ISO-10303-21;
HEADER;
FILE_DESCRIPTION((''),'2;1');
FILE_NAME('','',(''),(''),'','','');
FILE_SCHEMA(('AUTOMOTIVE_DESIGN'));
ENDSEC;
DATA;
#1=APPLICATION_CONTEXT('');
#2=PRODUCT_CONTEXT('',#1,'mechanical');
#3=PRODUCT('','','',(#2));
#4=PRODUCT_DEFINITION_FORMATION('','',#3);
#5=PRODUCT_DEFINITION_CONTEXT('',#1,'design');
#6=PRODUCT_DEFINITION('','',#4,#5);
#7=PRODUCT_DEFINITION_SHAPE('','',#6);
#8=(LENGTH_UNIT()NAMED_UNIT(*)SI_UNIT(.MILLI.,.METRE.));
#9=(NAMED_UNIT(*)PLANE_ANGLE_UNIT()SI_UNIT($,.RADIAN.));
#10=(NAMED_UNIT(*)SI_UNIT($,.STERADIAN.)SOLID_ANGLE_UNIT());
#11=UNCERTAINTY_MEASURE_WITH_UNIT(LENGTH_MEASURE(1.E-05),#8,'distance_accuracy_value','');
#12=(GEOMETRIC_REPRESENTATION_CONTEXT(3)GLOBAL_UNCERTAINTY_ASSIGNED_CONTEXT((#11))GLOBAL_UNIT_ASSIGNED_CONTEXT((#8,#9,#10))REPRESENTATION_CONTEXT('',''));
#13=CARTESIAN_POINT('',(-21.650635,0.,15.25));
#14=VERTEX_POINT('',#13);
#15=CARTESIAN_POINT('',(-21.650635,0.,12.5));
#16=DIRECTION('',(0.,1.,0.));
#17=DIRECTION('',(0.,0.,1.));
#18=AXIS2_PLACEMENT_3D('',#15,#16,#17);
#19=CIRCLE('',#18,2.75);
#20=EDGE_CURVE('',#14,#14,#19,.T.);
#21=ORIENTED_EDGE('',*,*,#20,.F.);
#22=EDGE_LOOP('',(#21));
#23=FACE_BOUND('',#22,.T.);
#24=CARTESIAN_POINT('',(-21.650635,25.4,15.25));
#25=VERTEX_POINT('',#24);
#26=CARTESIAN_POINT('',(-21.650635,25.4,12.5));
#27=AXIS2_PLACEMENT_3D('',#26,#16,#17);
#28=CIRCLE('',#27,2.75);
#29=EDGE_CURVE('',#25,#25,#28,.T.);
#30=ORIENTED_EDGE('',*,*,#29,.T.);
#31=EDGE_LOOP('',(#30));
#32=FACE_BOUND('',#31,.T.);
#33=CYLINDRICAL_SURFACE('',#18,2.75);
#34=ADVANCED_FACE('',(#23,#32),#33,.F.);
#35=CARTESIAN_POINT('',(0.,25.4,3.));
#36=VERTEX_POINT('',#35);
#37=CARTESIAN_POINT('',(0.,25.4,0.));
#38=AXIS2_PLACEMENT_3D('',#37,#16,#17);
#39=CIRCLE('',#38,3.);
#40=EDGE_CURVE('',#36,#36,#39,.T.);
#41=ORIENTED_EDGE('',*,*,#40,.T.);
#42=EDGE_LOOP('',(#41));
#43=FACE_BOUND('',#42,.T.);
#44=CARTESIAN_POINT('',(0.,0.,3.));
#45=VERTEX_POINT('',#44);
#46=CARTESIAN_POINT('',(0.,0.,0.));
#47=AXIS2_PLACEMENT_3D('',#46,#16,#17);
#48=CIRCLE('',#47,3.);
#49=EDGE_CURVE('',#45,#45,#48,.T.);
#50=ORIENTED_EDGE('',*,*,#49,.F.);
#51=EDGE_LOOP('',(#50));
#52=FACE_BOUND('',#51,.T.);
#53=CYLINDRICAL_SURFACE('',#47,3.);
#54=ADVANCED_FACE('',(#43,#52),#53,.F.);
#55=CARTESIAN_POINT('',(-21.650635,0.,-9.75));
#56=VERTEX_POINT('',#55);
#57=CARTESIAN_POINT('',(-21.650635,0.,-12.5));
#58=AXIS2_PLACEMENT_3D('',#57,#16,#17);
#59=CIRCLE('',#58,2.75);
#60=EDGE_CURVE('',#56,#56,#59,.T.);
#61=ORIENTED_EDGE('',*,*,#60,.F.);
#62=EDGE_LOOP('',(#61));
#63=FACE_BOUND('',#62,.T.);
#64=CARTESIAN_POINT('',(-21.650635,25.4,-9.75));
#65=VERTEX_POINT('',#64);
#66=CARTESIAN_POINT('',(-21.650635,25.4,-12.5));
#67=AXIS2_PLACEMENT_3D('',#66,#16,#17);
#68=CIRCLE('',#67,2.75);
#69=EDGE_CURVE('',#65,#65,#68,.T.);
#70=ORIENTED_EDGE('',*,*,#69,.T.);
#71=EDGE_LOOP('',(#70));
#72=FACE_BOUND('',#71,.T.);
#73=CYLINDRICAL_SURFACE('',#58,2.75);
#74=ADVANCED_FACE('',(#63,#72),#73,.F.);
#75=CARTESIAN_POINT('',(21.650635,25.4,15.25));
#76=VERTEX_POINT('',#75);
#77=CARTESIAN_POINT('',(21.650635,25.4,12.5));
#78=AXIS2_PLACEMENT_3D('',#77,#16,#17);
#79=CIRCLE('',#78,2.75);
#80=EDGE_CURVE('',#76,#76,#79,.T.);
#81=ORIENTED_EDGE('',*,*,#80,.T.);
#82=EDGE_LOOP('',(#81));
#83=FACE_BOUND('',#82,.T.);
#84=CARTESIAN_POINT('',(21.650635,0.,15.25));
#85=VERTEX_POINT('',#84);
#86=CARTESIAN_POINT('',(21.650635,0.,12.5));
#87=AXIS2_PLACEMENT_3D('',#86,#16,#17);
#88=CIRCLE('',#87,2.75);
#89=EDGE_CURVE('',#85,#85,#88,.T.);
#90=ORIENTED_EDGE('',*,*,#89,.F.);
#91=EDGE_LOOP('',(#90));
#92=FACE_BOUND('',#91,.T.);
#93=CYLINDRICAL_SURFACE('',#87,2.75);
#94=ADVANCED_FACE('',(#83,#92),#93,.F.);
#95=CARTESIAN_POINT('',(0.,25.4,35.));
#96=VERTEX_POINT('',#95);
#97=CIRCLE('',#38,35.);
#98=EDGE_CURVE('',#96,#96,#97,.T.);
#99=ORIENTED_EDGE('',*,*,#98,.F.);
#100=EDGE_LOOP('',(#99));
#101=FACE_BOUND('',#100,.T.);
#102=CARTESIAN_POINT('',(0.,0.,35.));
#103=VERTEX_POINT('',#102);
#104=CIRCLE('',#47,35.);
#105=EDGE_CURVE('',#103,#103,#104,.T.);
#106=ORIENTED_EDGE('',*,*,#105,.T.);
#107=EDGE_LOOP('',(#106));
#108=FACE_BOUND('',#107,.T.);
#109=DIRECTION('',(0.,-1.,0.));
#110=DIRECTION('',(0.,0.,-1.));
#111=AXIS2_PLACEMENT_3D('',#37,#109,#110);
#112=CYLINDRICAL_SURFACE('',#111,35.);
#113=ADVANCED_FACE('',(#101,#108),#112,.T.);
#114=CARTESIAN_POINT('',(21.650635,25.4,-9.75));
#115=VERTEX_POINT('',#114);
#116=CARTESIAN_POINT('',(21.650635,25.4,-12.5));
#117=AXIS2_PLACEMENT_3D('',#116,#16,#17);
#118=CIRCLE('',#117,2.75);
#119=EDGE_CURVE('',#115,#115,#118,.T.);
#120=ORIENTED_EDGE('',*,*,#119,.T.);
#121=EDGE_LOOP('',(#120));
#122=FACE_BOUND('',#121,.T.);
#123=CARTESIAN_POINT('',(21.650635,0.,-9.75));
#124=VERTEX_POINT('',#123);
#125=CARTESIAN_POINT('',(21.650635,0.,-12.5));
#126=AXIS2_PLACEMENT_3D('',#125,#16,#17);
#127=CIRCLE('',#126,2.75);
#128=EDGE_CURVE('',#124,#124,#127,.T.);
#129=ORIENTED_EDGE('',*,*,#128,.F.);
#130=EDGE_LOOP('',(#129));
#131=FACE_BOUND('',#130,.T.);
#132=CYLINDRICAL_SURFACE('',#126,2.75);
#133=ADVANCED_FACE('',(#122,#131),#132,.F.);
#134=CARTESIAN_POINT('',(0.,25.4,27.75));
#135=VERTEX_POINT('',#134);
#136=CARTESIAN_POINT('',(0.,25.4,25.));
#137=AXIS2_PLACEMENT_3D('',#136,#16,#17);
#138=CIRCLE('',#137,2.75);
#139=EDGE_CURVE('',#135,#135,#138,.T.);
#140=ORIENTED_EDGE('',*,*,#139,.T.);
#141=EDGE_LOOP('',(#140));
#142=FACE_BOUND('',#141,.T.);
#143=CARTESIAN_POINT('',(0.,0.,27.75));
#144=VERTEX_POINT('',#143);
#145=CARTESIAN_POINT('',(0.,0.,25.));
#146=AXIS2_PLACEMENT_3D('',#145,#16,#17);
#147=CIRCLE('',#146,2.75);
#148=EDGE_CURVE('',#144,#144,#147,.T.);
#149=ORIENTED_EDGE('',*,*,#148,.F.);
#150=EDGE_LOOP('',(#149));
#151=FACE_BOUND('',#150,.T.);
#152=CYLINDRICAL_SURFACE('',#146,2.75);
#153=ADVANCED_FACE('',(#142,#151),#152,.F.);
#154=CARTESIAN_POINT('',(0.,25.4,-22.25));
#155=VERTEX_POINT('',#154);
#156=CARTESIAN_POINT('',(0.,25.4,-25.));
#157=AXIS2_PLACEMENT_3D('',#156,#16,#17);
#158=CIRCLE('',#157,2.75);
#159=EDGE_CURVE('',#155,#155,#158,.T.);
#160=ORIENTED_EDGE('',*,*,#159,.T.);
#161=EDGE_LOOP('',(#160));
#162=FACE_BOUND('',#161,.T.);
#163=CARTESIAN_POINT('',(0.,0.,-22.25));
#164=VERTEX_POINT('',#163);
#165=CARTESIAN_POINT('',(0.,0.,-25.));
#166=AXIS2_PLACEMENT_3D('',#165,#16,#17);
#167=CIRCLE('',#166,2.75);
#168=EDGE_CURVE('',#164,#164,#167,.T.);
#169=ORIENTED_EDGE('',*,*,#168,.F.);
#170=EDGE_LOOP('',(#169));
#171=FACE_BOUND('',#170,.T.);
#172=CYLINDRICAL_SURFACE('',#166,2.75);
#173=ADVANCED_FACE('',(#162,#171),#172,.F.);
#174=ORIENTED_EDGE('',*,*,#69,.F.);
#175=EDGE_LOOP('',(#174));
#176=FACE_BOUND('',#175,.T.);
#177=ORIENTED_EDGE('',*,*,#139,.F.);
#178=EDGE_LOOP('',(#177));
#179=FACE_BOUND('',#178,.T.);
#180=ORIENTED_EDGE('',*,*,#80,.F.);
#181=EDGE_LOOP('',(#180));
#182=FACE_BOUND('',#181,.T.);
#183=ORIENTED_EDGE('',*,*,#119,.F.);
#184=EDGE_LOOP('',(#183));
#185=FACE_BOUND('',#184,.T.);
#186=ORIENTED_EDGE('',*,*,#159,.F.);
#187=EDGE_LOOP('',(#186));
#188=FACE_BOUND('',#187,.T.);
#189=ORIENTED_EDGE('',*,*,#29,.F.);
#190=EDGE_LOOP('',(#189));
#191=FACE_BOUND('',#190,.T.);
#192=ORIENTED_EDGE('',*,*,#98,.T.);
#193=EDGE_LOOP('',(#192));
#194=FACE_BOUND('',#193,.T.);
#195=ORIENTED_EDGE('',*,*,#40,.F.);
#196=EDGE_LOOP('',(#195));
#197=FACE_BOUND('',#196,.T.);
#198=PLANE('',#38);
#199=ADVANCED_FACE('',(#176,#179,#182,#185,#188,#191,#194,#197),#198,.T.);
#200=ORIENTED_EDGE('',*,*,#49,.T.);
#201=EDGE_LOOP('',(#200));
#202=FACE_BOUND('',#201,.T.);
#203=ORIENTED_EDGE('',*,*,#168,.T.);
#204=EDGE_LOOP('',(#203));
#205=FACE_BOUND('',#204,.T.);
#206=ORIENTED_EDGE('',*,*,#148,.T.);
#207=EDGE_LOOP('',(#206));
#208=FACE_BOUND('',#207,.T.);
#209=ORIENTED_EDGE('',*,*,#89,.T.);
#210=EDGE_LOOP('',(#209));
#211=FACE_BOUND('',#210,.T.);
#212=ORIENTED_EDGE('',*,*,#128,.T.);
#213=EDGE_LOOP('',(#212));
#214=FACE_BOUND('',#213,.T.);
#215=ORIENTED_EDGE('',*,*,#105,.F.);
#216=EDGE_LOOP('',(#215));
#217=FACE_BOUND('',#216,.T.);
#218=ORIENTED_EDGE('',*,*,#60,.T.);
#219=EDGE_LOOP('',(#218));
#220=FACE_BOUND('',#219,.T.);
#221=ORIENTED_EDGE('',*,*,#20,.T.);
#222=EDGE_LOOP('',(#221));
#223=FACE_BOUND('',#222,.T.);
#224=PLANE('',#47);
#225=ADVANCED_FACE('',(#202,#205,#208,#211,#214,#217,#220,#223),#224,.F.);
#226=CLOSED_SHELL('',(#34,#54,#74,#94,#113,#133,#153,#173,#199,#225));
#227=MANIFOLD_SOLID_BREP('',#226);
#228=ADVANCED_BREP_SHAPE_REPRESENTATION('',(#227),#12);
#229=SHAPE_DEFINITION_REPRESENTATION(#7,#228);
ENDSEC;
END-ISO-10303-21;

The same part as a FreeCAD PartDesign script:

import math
import FreeCAD as App
import Part
import Sketcher
from FreeCAD import Vector
Q = App.Units.Quantity

doc = App.newDocument("Part")
body = doc.addObject("PartDesign::Body", "Body")

# Sketch on XZ plane
sketch1 = body.newObject("Sketcher::SketchObject", "Sketch")
sketch1.AttachmentSupport = (doc.getObject("XZ_Plane"), [""])
sketch1.MapMode = "FlatFace"
sketch1.addGeometry(Part.Circle(Vector(0, 0, 0), Vector(0, 0, 1), 35), False)
sketch1.addConstraint([
    Sketcher.Constraint("Coincident", 0, 3, -1, 1),
    Sketcher.Constraint("Diameter", 0, Q("70 mm")),
])
pad1 = body.newObject("PartDesign::Pad", "Pad")
pad1.Profile = sketch1
pad1.Length = 25.4
pad1.Reversed = True

# Sketch on XZ plane
sketch2 = body.newObject("Sketcher::SketchObject", "Sketch001")
sketch2.AttachmentSupport = (doc.getObject("XZ_Plane"), [""])
sketch2.MapMode = "FlatFace"
sketch2.AttachmentOffset = App.Placement(Vector(0, 0, -25.4), App.Rotation())
sketch2.addGeometry([
    Part.ArcOfCircle(Part.Circle(Vector(0, 0, 0), Vector(0, 0, 1), 3), math.radians(-56.44269), math.radians(236.44269)),
    Part.ArcOfCircle(Part.Circle(Vector(0, 0, 0), Vector(0, 0, 1), 3), math.radians(-123.55731), math.radians(-56.44269)),
], False)
sketch2.addConstraint([
    Sketcher.Constraint("Tangent", 0, 1, 1, 2),
    Sketcher.Constraint("Coincident", 1, 1, 0, 2),
    Sketcher.Constraint("Coincident", 0, 3, -1, 1),
    Sketcher.Constraint("Horizontal", 0, 1, 1, 1),
    Sketcher.Constraint("Radius", 0, Q("3 mm")),
    Sketcher.Constraint("DistanceY", 0, 1, -1, 1, Q("2.5 mm")),
])
pocket1 = body.newObject("PartDesign::Pocket", "Pocket")
pocket1.Profile = sketch2
pocket1.Type = "ThroughAll"
pocket1.Reversed = True

# Sketch on XZ plane
sketch3 = body.newObject("Sketcher::SketchObject", "Sketch002")
sketch3.AttachmentSupport = (doc.getObject("XZ_Plane"), [""])
sketch3.MapMode = "FlatFace"
sketch3.AttachmentOffset = App.Placement(Vector(0, 0, -25.4), App.Rotation())
sketch3.addGeometry([
    Part.Circle(Vector(0, -25, 0), Vector(0, 0, 1), 2.75),  # 0
    Part.Circle(Vector(21.650635, -12.5, 0), Vector(0, 0, 1), 2.75),  # 1
    Part.Circle(Vector(21.650635, 12.5, 0), Vector(0, 0, 1), 2.75),  # 2
    Part.Circle(Vector(0, 25, 0), Vector(0, 0, 1), 2.75),  # 3
    Part.Circle(Vector(-21.650635, 12.5, 0), Vector(0, 0, 1), 2.75),  # 4
    Part.Circle(Vector(-21.650635, -12.5, 0), Vector(0, 0, 1), 2.75),  # 5
], False)
sketch3.addConstraint([
    Sketcher.Constraint("Equal", 0, 1),
    Sketcher.Constraint("Equal", 1, 2),
    Sketcher.Constraint("Equal", 2, 3),
    Sketcher.Constraint("Equal", 3, 4),
    Sketcher.Constraint("Equal", 4, 5),
    Sketcher.Constraint("Symmetric", 0, 3, 3, 3, -1, 1),
    Sketcher.Constraint("Symmetric", 1, 3, 4, 3, -1, 1),
    Sketcher.Constraint("Symmetric", 2, 3, 5, 3, -1, 1),
    Sketcher.Constraint("Symmetric", 2, 3, 4, 3, -2),
    Sketcher.Constraint("PointOnObject", 0, 3, -2),
    Sketcher.Constraint("Diameter", 0, Q("5.5 mm")),
    Sketcher.Constraint("DistanceY", 0, 3, -1, 1, Q("25 mm")),
    Sketcher.Constraint("DistanceY", 1, 3, 2, 3, Q("25 mm")),
    Sketcher.Constraint("DistanceX", 4, 3, 2, 3, Q("43.30127 mm")),
])
pocket2 = body.newObject("PartDesign::Pocket", "Pocket001")
pocket2.Profile = sketch3
pocket2.Type = "ThroughAll"
pocket2.Reversed = True

doc.recompute()
